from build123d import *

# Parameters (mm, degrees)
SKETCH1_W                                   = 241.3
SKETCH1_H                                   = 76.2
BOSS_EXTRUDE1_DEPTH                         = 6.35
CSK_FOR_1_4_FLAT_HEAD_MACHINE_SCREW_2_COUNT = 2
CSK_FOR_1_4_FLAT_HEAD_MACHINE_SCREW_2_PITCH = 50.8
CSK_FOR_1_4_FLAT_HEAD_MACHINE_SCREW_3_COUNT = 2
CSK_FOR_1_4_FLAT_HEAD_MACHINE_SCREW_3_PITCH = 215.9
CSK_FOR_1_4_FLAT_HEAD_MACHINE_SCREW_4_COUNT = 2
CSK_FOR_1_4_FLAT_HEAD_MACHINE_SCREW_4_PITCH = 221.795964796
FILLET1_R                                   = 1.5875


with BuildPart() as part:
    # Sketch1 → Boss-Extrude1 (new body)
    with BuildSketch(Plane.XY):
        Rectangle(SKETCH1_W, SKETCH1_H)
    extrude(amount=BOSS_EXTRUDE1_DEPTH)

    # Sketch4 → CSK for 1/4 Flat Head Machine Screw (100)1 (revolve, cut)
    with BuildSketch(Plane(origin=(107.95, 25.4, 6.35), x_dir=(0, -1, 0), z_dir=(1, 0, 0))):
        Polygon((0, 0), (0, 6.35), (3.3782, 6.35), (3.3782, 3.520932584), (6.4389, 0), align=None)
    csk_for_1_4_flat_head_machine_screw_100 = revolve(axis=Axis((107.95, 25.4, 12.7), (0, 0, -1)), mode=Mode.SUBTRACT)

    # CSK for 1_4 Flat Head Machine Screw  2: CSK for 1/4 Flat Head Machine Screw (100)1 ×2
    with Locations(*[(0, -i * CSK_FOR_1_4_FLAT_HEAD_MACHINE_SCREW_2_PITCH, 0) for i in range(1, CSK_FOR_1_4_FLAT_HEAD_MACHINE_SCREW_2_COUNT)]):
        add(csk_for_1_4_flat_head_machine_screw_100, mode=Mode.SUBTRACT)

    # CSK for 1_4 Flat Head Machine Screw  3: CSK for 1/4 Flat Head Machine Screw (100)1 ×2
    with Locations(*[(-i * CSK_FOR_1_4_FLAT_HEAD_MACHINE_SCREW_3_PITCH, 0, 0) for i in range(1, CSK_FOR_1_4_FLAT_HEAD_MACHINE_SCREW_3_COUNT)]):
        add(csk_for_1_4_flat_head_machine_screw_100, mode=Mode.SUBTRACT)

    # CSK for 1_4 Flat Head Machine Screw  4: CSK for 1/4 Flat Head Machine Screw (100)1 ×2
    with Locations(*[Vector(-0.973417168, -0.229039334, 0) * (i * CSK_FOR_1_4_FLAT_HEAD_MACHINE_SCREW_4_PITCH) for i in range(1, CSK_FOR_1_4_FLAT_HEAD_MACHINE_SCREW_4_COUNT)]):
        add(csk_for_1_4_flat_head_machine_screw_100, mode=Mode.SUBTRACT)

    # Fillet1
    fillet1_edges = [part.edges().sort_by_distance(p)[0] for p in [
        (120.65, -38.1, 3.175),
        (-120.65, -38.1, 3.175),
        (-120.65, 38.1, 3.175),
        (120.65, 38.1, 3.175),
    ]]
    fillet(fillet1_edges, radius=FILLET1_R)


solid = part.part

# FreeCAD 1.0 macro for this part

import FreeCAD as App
import Part
import Sketcher
Q = App.Units.Quantity


def edges_at(feature, points):
    """Names of the edges that pass closest to the given points."""
    edges = feature.Shape.Edges
    near = lambda p: min(range(len(edges)), key=lambda i: edges[i].distToShape(Part.Vertex(*p))[0])
    return sorted({f"Edge{near(p) + 1}" for p in points})


def add_polygon(sketch, points):
    """Adds a closed chain of lines whose ends are joined by coincident constraints."""
    first, n = sketch.GeometryCount, len(points)
    for a, b in zip(points, points[1:] + points[:1]):
        sketch.addGeometry(Part.LineSegment(App.Vector(*a, 0), App.Vector(*b, 0)), False)
    for i in range(n):
        sketch.addConstraint(Sketcher.Constraint("Coincident", first + i, 2, first + (i + 1) % n, 1))

doc = App.newDocument("Part")
params = doc.addObject("Spreadsheet::Sheet", "Params")
for row, (alias, value) in enumerate([
    ("sketch1_height", "3 in"),
    ("sketch1_width", "9.5 in"),
    ("pad1_length", "0.25 in"),
    ("sketch2_height", "0.25 in"),
    ("sketch2_width", "0.133 in"),
    ("groove_angle", "360 deg"),
    ("linearpattern_pitch", "2 in"),
    ("linearpattern2_pitch", "8.5 in"),
    ("linearpattern3_pitch", "221.795965 mm"),
    ("fillet_radius", "0.0625 in"),
], start=1):
    params.set(f"A{row}", alias)
    params.set(f"B{row}", "=" + value)
    params.setAlias(f"B{row}", alias)

body = doc.addObject("PartDesign::Body", "Body")

sketch1 = doc.addObject("Sketcher::SketchObject", "Sketch")
body.addObject(sketch1)
sketch1.AttachmentSupport = (doc.XY_Plane, [""])
sketch1.MapMode = "FlatFace"
add_polygon(sketch1, [(-121, 38), (-121, -38), (121, -38), (121, 38)])
sketch1.addConstraint([
    Sketcher.Constraint("Vertical", 0),
    Sketcher.Constraint("Horizontal", 1),
    Sketcher.Constraint("Vertical", 2),
    Sketcher.Constraint("Horizontal", 3),
    Sketcher.Constraint("Symmetric", 0, 2, 2, 2, -1, 1),
    Sketcher.Constraint("DistanceY", 0, 2, 0, 1, Q("3 in")),
    Sketcher.Constraint("DistanceX", 1, 1, 1, 2, Q("9.5 in")),
])
sketch1.setExpression("Constraints[9]", "Params.sketch1_height")
sketch1.setExpression("Constraints[10]", "Params.sketch1_width")
pad1 = doc.addObject("PartDesign::Pad", "Pad")
body.addObject(pad1)
pad1.Profile = sketch1
pad1.setExpression("Length", "Params.pad1_length")

sketch2 = doc.addObject("Sketcher::SketchObject", "Sketch001")
body.addObject(sketch2)
sketch2.AttachmentSupport = (doc.YZ_Plane, [""])
sketch2.MapMode = "FlatFace"
sketch2.AttachmentOffset = App.Placement(App.Vector(0, 0, 4.25 * 25.4), App.Rotation())
add_polygon(sketch2, [(25.4, 0), (25.4, 6.3), (19, 6.3), (22, 2.8), (22, 0)])
sketch2.addGeometry(Part.LineSegment(App.Vector(25.4, 6.3, 0), App.Vector(25.4, 0, 0)), True)
sketch2.addConstraint([
    Sketcher.Constraint("Vertical", 0),
    Sketcher.Constraint("Horizontal", 1),
    Sketcher.Constraint("Vertical", 3),
    Sketcher.Constraint("Horizontal", 4),
    Sketcher.Constraint("Vertical", 5),
    Sketcher.Constraint("Coincident", 5, 1, 0, 2),
    Sketcher.Constraint("PointOnObject", 3, 2, -1),
    Sketcher.Constraint("PointOnObject", 5, 2, -1),
    Sketcher.Constraint("DistanceX", -1, 1, 0, 2, Q("1 in")),
    Sketcher.Constraint("Angle", 2, Q("-49 deg")),
    Sketcher.Constraint("DistanceY", 0, 1, 0, 2, Q("0.25 in")),
    Sketcher.Constraint("DistanceX", 4, 1, 4, 2, Q("0.133 in")),
    Sketcher.Constraint("DistanceX", 1, 2, 1, 1, Q("0.2535 in")),
])
sketch2.setExpression("Constraints[15]", "Params.sketch2_height")
sketch2.setExpression("Constraints[16]", "Params.sketch2_width")
groove = doc.addObject("PartDesign::Groove", "Groove")
body.addObject(groove)
groove.Profile = sketch2
groove.ReferenceAxis = (sketch2, ["Axis0"])
groove.setExpression("Angle", "Params.groove_angle")
doc.recompute()

linearpattern = doc.addObject("PartDesign::LinearPattern", "LinearPattern")
body.addObject(linearpattern)
linearpattern.Originals = [groove]
linearpattern.Direction = (doc.Y_Axis, [""])
linearpattern.Mode = "offset"
linearpattern.setExpression("Offset", "Params.linearpattern_pitch")
linearpattern.Occurrences = 2
linearpattern.Reversed = True
body.Tip = linearpattern
doc.recompute()

linearpattern2 = doc.addObject("PartDesign::LinearPattern", "LinearPattern001")
body.addObject(linearpattern2)
linearpattern2.Originals = [groove]
linearpattern2.Direction = (doc.X_Axis, [""])
linearpattern2.Mode = "offset"
linearpattern2.setExpression("Offset", "Params.linearpattern2_pitch")
linearpattern2.Occurrences = 2
linearpattern2.Reversed = True
body.Tip = linearpattern2
doc.recompute()

datumline = doc.addObject("PartDesign::Line", "DatumLine")
body.addObject(datumline)
datumline.Placement = App.Placement(App.Vector(0, 0, 0), App.Rotation(App.Vector(0, 0, 1), App.Vector(-0.973417168, -0.229039334, 0)))
linearpattern3 = doc.addObject("PartDesign::LinearPattern", "LinearPattern002")
body.addObject(linearpattern3)
linearpattern3.Originals = [groove]
linearpattern3.Direction = (datumline, [""])
linearpattern3.Mode = "offset"
linearpattern3.setExpression("Offset", "Params.linearpattern3_pitch")
linearpattern3.Occurrences = 2
body.Tip = linearpattern3
doc.recompute()

fillet = doc.addObject("PartDesign::Fillet", "Fillet")
body.addObject(fillet)
fillet.Base = (linearpattern3, edges_at(linearpattern3, [
    (120.65, -38.1, 3.175),
    (-120.65, -38.1, 3.175),
    (-120.65, 38.1, 3.175),
    (120.65, 38.1, 3.175),
]))
fillet.setExpression("Radius", "Params.fillet_radius")

doc.recompute()
